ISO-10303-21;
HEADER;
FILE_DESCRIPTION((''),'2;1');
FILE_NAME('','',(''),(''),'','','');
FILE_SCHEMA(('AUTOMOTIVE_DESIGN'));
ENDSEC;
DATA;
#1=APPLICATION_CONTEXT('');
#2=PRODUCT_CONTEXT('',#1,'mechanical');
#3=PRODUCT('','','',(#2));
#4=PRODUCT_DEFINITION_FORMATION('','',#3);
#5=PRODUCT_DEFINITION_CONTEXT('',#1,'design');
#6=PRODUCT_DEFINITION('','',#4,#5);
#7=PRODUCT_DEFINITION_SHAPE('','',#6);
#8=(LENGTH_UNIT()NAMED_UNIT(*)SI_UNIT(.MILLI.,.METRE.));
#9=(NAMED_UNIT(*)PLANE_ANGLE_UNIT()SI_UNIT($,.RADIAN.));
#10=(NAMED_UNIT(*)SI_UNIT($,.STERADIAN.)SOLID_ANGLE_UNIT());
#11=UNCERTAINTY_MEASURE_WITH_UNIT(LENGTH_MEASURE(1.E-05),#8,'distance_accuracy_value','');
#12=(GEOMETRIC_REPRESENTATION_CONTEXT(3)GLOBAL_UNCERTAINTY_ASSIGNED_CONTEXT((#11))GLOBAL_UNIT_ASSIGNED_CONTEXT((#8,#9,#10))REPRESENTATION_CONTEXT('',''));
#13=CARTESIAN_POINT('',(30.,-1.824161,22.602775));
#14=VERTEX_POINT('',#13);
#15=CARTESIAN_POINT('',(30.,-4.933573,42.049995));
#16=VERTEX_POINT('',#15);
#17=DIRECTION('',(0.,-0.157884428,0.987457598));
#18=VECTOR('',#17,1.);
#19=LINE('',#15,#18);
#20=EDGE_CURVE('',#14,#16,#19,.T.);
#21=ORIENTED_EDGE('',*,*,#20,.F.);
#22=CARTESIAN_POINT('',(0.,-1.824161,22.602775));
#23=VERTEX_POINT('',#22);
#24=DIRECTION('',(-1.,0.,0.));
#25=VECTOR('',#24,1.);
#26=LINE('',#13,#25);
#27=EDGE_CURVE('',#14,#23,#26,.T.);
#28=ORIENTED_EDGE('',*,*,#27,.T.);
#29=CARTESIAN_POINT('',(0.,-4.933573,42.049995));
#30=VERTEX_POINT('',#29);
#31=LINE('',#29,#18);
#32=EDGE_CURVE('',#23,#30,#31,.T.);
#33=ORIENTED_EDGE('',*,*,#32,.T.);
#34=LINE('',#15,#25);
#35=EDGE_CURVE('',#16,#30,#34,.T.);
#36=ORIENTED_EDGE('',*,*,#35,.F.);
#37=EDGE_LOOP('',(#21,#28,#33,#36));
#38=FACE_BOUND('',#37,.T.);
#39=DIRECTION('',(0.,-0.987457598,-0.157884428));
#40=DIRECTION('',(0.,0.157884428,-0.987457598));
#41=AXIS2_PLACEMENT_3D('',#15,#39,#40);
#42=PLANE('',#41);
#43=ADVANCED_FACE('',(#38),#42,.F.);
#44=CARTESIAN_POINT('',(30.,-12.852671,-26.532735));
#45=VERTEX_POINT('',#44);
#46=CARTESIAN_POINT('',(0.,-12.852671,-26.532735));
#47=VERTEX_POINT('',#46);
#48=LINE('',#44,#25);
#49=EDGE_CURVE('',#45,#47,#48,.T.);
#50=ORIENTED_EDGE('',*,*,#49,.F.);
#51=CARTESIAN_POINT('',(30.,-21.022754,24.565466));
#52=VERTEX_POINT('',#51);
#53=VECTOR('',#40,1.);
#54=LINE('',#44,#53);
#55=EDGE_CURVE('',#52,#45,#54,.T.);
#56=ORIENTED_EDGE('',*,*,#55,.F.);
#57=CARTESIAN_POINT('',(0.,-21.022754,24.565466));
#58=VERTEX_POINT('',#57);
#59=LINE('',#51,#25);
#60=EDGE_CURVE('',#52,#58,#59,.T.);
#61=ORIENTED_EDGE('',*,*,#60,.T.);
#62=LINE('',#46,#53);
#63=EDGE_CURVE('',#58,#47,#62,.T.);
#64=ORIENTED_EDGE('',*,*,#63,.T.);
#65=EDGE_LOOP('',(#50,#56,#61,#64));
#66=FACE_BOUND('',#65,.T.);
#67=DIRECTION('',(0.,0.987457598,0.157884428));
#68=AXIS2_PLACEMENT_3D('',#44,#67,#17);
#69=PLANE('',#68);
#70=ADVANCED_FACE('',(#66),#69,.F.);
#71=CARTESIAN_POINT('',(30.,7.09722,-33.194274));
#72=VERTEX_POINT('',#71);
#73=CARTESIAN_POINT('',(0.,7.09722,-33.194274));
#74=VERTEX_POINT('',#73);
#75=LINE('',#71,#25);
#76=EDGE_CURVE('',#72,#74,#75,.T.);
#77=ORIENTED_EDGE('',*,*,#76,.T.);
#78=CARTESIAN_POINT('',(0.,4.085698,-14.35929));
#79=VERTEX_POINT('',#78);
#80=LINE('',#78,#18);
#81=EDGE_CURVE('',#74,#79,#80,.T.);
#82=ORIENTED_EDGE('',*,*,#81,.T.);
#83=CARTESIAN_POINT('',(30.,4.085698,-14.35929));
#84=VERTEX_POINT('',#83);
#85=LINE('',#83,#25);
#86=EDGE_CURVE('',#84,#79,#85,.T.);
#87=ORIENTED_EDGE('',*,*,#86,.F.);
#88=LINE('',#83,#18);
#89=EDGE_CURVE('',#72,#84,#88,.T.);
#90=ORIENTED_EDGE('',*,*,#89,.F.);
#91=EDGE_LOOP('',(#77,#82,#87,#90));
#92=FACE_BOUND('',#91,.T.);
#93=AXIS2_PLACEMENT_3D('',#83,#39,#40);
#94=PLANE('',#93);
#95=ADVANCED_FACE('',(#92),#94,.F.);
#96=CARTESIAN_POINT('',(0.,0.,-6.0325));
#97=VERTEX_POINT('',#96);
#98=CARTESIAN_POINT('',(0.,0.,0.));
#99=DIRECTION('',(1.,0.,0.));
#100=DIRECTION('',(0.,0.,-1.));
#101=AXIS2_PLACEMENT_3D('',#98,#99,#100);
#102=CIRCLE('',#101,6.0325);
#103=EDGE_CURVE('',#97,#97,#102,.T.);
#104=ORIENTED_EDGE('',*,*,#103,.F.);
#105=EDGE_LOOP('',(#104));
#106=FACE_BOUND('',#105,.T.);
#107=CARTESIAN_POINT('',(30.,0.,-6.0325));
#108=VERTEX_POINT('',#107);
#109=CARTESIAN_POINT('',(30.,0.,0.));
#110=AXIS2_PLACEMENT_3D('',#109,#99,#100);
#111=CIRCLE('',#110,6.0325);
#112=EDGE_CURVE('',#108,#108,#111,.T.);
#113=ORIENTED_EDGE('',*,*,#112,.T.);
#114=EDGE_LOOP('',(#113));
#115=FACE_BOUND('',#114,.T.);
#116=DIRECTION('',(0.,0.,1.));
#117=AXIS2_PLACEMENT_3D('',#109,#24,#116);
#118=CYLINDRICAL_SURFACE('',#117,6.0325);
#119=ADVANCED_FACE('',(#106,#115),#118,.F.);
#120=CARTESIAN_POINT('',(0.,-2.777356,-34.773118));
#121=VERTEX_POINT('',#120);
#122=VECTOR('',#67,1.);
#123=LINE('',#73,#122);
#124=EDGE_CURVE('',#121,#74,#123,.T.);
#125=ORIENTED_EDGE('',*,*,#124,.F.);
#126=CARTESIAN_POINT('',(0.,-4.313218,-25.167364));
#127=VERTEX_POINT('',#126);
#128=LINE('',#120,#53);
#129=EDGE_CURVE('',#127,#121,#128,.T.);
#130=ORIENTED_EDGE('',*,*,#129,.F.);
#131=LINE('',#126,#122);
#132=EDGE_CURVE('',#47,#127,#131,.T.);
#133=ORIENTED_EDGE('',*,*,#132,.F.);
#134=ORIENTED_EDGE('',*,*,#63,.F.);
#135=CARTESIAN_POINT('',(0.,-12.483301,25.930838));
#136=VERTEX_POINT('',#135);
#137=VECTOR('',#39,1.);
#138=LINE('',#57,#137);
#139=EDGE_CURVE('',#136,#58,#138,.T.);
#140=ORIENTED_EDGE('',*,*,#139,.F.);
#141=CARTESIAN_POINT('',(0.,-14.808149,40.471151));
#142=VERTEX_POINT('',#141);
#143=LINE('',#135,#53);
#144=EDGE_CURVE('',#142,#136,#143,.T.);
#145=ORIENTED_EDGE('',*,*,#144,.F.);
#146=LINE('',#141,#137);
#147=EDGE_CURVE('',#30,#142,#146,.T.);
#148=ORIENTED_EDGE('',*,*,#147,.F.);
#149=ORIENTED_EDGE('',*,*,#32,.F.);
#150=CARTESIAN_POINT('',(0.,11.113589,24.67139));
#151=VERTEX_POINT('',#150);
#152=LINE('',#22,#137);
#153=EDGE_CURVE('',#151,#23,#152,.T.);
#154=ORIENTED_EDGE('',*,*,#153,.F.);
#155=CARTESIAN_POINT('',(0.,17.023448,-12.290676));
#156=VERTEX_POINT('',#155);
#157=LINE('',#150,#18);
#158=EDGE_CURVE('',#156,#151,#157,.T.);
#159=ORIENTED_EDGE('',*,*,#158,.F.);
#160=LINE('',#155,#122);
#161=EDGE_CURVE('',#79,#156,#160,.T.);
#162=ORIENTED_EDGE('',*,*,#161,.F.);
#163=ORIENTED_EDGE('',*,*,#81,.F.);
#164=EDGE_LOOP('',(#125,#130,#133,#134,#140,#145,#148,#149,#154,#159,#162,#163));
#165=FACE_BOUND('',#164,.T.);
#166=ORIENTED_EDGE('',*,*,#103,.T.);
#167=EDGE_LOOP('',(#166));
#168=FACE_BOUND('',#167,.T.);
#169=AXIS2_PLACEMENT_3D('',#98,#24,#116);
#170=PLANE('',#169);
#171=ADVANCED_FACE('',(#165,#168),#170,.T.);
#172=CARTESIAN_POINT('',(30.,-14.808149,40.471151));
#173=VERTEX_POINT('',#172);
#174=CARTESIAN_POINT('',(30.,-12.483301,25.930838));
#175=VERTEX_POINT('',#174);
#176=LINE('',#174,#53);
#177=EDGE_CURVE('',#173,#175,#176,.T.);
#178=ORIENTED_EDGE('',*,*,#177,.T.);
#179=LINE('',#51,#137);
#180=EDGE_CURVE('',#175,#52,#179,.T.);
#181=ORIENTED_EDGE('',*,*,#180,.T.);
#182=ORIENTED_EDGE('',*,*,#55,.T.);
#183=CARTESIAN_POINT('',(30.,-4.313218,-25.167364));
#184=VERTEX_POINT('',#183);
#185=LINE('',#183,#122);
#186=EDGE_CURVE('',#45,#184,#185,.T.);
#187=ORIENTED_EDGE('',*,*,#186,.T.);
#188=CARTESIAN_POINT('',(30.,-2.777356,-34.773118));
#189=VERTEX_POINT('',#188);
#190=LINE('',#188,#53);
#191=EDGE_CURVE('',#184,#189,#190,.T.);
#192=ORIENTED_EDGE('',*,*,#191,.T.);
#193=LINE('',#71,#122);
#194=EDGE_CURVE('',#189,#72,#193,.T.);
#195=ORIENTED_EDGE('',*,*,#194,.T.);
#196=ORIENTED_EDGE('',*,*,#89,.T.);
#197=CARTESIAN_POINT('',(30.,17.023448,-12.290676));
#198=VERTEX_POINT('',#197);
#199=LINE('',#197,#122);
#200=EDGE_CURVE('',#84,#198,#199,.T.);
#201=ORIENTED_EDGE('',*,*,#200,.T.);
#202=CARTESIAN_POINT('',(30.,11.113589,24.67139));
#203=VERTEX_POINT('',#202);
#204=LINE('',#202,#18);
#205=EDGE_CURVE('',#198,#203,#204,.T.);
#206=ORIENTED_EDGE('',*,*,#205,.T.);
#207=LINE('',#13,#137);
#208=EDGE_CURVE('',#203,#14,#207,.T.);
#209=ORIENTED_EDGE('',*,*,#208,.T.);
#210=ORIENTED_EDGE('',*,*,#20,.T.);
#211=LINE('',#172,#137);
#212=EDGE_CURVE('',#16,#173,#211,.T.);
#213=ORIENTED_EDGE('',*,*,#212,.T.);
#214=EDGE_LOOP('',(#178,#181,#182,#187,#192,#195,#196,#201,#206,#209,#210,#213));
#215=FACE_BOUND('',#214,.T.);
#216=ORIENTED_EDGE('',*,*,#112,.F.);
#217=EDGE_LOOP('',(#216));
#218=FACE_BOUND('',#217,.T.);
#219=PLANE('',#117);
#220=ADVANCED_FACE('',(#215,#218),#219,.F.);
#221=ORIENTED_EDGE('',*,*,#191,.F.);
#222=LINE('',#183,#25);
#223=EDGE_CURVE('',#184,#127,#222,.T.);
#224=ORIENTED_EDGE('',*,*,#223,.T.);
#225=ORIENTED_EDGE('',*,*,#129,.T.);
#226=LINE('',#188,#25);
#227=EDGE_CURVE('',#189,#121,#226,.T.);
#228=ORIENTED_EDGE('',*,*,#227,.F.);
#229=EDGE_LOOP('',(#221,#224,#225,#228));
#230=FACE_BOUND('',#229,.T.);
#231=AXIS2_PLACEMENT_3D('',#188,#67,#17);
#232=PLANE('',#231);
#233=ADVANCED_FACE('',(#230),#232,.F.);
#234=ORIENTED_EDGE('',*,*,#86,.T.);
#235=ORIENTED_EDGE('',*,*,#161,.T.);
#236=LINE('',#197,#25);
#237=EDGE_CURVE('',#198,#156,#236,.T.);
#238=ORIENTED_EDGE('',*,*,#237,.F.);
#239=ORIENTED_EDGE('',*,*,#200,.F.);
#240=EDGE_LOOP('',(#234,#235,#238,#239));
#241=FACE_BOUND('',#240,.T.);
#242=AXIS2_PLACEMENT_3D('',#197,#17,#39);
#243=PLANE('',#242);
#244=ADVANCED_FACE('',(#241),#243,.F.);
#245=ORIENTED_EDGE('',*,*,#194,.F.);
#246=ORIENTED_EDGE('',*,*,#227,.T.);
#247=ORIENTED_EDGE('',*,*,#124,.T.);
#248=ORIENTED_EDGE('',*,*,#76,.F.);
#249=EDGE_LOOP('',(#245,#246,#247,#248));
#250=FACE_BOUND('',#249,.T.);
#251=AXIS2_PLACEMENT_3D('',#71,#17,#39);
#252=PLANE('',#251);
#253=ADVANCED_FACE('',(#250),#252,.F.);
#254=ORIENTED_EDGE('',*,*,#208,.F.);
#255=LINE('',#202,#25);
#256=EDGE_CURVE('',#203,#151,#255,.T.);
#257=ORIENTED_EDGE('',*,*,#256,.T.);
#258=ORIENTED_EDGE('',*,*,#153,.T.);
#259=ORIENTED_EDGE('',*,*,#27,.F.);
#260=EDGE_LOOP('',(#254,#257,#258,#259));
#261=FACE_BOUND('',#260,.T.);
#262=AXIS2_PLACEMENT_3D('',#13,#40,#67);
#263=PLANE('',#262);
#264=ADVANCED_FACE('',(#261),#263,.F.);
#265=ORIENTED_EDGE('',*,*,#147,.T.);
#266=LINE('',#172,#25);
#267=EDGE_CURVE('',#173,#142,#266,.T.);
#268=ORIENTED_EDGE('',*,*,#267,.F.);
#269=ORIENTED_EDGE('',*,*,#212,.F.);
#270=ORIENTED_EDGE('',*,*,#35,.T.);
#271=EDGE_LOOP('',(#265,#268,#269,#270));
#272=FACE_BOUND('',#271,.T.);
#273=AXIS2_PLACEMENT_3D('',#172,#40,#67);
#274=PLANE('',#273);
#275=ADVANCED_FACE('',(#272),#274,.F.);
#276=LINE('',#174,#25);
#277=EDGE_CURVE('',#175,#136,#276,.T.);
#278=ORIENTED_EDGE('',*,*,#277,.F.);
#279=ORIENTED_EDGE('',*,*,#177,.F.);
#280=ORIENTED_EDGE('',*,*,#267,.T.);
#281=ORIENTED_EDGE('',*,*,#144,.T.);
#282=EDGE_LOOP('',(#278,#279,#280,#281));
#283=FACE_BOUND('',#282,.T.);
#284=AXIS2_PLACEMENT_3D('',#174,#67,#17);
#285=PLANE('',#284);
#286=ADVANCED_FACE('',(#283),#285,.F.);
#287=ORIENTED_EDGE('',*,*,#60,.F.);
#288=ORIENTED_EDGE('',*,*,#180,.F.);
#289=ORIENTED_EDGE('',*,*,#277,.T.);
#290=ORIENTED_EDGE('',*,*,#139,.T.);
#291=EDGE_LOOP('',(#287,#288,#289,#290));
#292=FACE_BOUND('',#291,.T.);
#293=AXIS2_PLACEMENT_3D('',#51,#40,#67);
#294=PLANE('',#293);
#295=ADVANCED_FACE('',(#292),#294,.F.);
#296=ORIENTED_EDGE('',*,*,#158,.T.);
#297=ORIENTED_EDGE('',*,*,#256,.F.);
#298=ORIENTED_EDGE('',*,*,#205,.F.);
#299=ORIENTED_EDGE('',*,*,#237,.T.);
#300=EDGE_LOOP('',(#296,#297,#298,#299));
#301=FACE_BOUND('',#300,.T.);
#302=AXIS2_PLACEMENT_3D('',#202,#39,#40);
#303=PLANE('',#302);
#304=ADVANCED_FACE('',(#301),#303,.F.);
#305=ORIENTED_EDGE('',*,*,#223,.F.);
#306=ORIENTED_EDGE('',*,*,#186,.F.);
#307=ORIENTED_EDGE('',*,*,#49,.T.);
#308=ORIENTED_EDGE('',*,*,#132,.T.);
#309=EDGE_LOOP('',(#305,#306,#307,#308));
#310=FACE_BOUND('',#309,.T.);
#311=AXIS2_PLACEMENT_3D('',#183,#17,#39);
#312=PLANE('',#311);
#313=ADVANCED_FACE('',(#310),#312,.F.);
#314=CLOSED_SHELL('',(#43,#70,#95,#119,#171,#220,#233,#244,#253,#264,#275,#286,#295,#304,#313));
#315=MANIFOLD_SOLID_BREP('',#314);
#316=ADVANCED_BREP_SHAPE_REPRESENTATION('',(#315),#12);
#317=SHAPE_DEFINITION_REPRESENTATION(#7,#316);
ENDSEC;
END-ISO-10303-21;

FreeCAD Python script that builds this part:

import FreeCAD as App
import Part
import Sketcher
from FreeCAD import Vector
Q = App.Units.Quantity

doc = App.newDocument("Part")
body = doc.addObject("PartDesign::Body", "Body")

# Sketch on YZ plane
sketch1 = body.newObject("Sketcher::SketchObject", "Sketch")
sketch1.AttachmentSupport = (doc.getObject("YZ_Plane"), [""])
sketch1.MapMode = "FlatFace"
sketch1.addGeometry([
    Part.LineSegment(Vector(-5, 42, 0), Vector(-15, 40, 0)),  # 0
    Part.LineSegment(Vector(-15, 40, 0), Vector(-12, 26, 0)),  # 1
    Part.LineSegment(Vector(-12, 26, 0), Vector(-21, 25, 0)),  # 2
    Part.LineSegment(Vector(-21, 25, 0), Vector(-13, -27, 0)),  # 3
    Part.LineSegment(Vector(-13, -27, 0), Vector(-4, -25, 0)),  # 4
    Part.LineSegment(Vector(-4, -25, 0), Vector(-3, -35, 0)),  # 5
    Part.LineSegment(Vector(-3, -35, 0), Vector(7, -33, 0)),  # 6
    Part.LineSegment(Vector(7, -33, 0), Vector(4, -14, 0)),  # 7
    Part.LineSegment(Vector(4, -14, 0), Vector(17, -12, 0)),  # 8
    Part.LineSegment(Vector(17, -12, 0), Vector(11, 25, 0)),  # 9
    Part.LineSegment(Vector(11, 25, 0), Vector(-2, 23, 0)),  # 10
    Part.LineSegment(Vector(-2, 23, 0), Vector(-5, 42, 0)),  # 11
    Part.Circle(Vector(0, 0, 0), Vector(0, 0, 1), 6),  # 12
], False)
sketch1.addConstraint([
    Sketcher.Constraint("Coincident", 0, 2, 1, 1),
    Sketcher.Constraint("Coincident", 1, 2, 2, 1),
    Sketcher.Constraint("Coincident", 2, 2, 3, 1),
    Sketcher.Constraint("Coincident", 3, 2, 4, 1),
    Sketcher.Constraint("Coincident", 4, 2, 5, 1),
    Sketcher.Constraint("Coincident", 5, 2, 6, 1),
    Sketcher.Constraint("Coincident", 6, 2, 7, 1),
    Sketcher.Constraint("Coincident", 7, 2, 8, 1),
    Sketcher.Constraint("Coincident", 8, 2, 9, 1),
    Sketcher.Constraint("Coincident", 9, 2, 10, 1),
    Sketcher.Constraint("Coincident", 10, 2, 11, 1),
    Sketcher.Constraint("Coincident", 11, 2, 0, 1),
    Sketcher.Constraint("Coincident", 12, 3, -1, 1),
    Sketcher.Constraint("Perpendicular", 0, 1),
    Sketcher.Constraint("Perpendicular", 1, 2),
    Sketcher.Constraint("Perpendicular", 2, 3),
    Sketcher.Constraint("Perpendicular", 3, 4),
    Sketcher.Constraint("Perpendicular", 4, 5),
    Sketcher.Constraint("Perpendicular", 5, 6),
    Sketcher.Constraint("Perpendicular", 6, 7),
    Sketcher.Constraint("Perpendicular", 7, 8),
    Sketcher.Constraint("Perpendicular", 8, 9),
    Sketcher.Constraint("Perpendicular", 9, 10),
    Sketcher.Constraint("Perpendicular", 10, 11),
    Sketcher.Constraint("Equal", 2, 4),
    Sketcher.Constraint("Equal", 0, 6),
    Sketcher.Constraint("Distance", 0, Q("10 mm")),
    Sketcher.Constraint("Diameter", 12, Q("12.065 mm")),
    Sketcher.Constraint("Distance", 1, Q("14.725 mm")),
    Sketcher.Constraint("DistanceX", 1, 2, -1, 1, Q("12.483301 mm")),
    Sketcher.Constraint("DistanceY", 3, 2, 2, 2, Q("51.098201 mm")),
    Sketcher.Constraint("DistanceY", 6, 2, 8, 2, Q("20.903598 mm")),
    Sketcher.Constraint("Distance", 2, Q("8.647918 mm")),
    Sketcher.Constraint("Distance", 7, Q("19.07422 mm")),
    Sketcher.Constraint("Distance", 8, Q("13.102082 mm")),
    Sketcher.Constraint("DistanceY", -1, 1, 0, 2, Q("40.471151 mm")),
    Sketcher.Constraint("DistanceY", 5, 2, -1, 1, Q("34.773118 mm")),
    Sketcher.Constraint("DistanceX", -1, 1, 9, 2, Q("11.113589 mm")),
])
pad1 = body.newObject("PartDesign::Pad", "Pad")
pad1.Profile = sketch1
pad1.Length = 30

doc.recompute()
